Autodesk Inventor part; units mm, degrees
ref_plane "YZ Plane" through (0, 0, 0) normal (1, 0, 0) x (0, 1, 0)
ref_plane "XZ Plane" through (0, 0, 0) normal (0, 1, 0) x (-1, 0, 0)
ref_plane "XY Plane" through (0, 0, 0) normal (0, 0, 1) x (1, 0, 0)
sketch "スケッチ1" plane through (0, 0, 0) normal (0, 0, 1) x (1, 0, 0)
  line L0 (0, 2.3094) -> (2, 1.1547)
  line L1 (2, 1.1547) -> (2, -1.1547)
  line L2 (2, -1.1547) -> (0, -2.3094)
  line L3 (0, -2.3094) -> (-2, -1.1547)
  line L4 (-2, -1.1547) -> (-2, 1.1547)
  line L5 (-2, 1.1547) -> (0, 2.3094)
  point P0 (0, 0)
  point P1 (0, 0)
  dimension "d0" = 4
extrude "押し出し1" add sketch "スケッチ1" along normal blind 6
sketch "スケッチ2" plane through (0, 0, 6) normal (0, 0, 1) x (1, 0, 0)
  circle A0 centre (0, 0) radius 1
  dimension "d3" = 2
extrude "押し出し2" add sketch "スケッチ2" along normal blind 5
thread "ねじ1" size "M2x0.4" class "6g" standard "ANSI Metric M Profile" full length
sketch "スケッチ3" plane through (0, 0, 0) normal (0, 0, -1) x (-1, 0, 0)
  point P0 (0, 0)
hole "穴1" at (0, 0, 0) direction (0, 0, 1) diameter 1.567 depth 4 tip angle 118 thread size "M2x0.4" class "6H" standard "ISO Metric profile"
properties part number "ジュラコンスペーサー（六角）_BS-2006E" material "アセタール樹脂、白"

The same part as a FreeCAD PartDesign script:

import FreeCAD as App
import Part
import Sketcher

V = App.Vector
Q = App.Units.Quantity


def add_polygon(sketch, points):
    """Adds a closed chain of lines whose ends are joined by coincident constraints."""
    first, n = sketch.GeometryCount, len(points)
    for a, b in zip(points, points[1:] + points[:1]):
        sketch.addGeometry(Part.LineSegment(App.Vector(*a, 0), App.Vector(*b, 0)), False)
    for i in range(n):
        sketch.addConstraint(Sketcher.Constraint("Coincident", first + i, 2, first + (i + 1) % n, 1))

doc = App.newDocument("Part")
body = doc.addObject("PartDesign::Body", "Body")

sketch1 = body.newObject("Sketcher::SketchObject", "Sketch")
sketch1.AttachmentSupport = (doc.getObject("XY_Plane"), [""])
sketch1.MapMode = "FlatFace"
add_polygon(sketch1, [(2, 1.2), (0, 2.3), (-2, 1.2), (-2, -1.2), (0, -2.3), (2, -1.2)])
sketch1.addConstraint([
    Sketcher.Constraint("Vertical", 2),
    Sketcher.Constraint("Vertical", 5),
    Sketcher.Constraint("Symmetric", 0, 2, 3, 2, -1, 1),
    Sketcher.Constraint("Symmetric", 1, 2, 4, 2, -1, 1),
    Sketcher.Constraint("PointOnObject", 0, 2, -2),
    Sketcher.Constraint("Parallel", 0, 3),
    Sketcher.Constraint("Horizontal", 2, 2, 4, 2),
    Sketcher.Constraint("DistanceX", 2, 2, 4, 2, 4.0),
    Sketcher.Constraint("Angle", 0, Q("150 deg")),
    Sketcher.Constraint("DistanceY", 2, 2, 2, 1, 2.3094),
])
pad1 = body.newObject("PartDesign::Pad", "Pad")
pad1.Profile = sketch1
pad1.Length = 6

sketch2 = body.newObject("Sketcher::SketchObject", "Sketch001")
sketch2.AttachmentSupport = (doc.getObject("XY_Plane"), [""])
sketch2.MapMode = "FlatFace"
sketch2.AttachmentOffset = App.Placement(V(0, 0, 6), App.Rotation())
sketch2.addGeometry(Part.Circle(V(0, 0, 0), V(0, 0, 1), 1), False)
sketch2.addConstraint([
    Sketcher.Constraint("Coincident", 0, 3, -1, 1),
    Sketcher.Constraint("Diameter", 0, 2.0),
])
pad2 = body.newObject("PartDesign::Pad", "Pad001")
pad2.Profile = sketch2
pad2.Length = 5

sketch3 = body.newObject("Sketcher::SketchObject", "Sketch002")
sketch3.AttachmentSupport = (doc.getObject("XY_Plane"), [""])
sketch3.MapMode = "FlatFace"
sketch3.addGeometry(Part.Circle(V(0, 0, 0), V(0, 0, 1), 0.8), False)
sketch3.addConstraint([
    Sketcher.Constraint("Coincident", 0, 3, -1, 1),
    Sketcher.Constraint("Diameter", 0, 1.567),
])
doc.recompute()
hole = body.newObject("PartDesign::Hole", "Hole")
hole.Profile = sketch3
hole.ThreadType = "None"
hole.Diameter = 1.567
hole.DepthType = "Dimension"
hole.Depth = 4
hole.DrillPoint = "Angled"
hole.DrillPointAngle = 118
hole.Reversed = True

doc.recompute()
